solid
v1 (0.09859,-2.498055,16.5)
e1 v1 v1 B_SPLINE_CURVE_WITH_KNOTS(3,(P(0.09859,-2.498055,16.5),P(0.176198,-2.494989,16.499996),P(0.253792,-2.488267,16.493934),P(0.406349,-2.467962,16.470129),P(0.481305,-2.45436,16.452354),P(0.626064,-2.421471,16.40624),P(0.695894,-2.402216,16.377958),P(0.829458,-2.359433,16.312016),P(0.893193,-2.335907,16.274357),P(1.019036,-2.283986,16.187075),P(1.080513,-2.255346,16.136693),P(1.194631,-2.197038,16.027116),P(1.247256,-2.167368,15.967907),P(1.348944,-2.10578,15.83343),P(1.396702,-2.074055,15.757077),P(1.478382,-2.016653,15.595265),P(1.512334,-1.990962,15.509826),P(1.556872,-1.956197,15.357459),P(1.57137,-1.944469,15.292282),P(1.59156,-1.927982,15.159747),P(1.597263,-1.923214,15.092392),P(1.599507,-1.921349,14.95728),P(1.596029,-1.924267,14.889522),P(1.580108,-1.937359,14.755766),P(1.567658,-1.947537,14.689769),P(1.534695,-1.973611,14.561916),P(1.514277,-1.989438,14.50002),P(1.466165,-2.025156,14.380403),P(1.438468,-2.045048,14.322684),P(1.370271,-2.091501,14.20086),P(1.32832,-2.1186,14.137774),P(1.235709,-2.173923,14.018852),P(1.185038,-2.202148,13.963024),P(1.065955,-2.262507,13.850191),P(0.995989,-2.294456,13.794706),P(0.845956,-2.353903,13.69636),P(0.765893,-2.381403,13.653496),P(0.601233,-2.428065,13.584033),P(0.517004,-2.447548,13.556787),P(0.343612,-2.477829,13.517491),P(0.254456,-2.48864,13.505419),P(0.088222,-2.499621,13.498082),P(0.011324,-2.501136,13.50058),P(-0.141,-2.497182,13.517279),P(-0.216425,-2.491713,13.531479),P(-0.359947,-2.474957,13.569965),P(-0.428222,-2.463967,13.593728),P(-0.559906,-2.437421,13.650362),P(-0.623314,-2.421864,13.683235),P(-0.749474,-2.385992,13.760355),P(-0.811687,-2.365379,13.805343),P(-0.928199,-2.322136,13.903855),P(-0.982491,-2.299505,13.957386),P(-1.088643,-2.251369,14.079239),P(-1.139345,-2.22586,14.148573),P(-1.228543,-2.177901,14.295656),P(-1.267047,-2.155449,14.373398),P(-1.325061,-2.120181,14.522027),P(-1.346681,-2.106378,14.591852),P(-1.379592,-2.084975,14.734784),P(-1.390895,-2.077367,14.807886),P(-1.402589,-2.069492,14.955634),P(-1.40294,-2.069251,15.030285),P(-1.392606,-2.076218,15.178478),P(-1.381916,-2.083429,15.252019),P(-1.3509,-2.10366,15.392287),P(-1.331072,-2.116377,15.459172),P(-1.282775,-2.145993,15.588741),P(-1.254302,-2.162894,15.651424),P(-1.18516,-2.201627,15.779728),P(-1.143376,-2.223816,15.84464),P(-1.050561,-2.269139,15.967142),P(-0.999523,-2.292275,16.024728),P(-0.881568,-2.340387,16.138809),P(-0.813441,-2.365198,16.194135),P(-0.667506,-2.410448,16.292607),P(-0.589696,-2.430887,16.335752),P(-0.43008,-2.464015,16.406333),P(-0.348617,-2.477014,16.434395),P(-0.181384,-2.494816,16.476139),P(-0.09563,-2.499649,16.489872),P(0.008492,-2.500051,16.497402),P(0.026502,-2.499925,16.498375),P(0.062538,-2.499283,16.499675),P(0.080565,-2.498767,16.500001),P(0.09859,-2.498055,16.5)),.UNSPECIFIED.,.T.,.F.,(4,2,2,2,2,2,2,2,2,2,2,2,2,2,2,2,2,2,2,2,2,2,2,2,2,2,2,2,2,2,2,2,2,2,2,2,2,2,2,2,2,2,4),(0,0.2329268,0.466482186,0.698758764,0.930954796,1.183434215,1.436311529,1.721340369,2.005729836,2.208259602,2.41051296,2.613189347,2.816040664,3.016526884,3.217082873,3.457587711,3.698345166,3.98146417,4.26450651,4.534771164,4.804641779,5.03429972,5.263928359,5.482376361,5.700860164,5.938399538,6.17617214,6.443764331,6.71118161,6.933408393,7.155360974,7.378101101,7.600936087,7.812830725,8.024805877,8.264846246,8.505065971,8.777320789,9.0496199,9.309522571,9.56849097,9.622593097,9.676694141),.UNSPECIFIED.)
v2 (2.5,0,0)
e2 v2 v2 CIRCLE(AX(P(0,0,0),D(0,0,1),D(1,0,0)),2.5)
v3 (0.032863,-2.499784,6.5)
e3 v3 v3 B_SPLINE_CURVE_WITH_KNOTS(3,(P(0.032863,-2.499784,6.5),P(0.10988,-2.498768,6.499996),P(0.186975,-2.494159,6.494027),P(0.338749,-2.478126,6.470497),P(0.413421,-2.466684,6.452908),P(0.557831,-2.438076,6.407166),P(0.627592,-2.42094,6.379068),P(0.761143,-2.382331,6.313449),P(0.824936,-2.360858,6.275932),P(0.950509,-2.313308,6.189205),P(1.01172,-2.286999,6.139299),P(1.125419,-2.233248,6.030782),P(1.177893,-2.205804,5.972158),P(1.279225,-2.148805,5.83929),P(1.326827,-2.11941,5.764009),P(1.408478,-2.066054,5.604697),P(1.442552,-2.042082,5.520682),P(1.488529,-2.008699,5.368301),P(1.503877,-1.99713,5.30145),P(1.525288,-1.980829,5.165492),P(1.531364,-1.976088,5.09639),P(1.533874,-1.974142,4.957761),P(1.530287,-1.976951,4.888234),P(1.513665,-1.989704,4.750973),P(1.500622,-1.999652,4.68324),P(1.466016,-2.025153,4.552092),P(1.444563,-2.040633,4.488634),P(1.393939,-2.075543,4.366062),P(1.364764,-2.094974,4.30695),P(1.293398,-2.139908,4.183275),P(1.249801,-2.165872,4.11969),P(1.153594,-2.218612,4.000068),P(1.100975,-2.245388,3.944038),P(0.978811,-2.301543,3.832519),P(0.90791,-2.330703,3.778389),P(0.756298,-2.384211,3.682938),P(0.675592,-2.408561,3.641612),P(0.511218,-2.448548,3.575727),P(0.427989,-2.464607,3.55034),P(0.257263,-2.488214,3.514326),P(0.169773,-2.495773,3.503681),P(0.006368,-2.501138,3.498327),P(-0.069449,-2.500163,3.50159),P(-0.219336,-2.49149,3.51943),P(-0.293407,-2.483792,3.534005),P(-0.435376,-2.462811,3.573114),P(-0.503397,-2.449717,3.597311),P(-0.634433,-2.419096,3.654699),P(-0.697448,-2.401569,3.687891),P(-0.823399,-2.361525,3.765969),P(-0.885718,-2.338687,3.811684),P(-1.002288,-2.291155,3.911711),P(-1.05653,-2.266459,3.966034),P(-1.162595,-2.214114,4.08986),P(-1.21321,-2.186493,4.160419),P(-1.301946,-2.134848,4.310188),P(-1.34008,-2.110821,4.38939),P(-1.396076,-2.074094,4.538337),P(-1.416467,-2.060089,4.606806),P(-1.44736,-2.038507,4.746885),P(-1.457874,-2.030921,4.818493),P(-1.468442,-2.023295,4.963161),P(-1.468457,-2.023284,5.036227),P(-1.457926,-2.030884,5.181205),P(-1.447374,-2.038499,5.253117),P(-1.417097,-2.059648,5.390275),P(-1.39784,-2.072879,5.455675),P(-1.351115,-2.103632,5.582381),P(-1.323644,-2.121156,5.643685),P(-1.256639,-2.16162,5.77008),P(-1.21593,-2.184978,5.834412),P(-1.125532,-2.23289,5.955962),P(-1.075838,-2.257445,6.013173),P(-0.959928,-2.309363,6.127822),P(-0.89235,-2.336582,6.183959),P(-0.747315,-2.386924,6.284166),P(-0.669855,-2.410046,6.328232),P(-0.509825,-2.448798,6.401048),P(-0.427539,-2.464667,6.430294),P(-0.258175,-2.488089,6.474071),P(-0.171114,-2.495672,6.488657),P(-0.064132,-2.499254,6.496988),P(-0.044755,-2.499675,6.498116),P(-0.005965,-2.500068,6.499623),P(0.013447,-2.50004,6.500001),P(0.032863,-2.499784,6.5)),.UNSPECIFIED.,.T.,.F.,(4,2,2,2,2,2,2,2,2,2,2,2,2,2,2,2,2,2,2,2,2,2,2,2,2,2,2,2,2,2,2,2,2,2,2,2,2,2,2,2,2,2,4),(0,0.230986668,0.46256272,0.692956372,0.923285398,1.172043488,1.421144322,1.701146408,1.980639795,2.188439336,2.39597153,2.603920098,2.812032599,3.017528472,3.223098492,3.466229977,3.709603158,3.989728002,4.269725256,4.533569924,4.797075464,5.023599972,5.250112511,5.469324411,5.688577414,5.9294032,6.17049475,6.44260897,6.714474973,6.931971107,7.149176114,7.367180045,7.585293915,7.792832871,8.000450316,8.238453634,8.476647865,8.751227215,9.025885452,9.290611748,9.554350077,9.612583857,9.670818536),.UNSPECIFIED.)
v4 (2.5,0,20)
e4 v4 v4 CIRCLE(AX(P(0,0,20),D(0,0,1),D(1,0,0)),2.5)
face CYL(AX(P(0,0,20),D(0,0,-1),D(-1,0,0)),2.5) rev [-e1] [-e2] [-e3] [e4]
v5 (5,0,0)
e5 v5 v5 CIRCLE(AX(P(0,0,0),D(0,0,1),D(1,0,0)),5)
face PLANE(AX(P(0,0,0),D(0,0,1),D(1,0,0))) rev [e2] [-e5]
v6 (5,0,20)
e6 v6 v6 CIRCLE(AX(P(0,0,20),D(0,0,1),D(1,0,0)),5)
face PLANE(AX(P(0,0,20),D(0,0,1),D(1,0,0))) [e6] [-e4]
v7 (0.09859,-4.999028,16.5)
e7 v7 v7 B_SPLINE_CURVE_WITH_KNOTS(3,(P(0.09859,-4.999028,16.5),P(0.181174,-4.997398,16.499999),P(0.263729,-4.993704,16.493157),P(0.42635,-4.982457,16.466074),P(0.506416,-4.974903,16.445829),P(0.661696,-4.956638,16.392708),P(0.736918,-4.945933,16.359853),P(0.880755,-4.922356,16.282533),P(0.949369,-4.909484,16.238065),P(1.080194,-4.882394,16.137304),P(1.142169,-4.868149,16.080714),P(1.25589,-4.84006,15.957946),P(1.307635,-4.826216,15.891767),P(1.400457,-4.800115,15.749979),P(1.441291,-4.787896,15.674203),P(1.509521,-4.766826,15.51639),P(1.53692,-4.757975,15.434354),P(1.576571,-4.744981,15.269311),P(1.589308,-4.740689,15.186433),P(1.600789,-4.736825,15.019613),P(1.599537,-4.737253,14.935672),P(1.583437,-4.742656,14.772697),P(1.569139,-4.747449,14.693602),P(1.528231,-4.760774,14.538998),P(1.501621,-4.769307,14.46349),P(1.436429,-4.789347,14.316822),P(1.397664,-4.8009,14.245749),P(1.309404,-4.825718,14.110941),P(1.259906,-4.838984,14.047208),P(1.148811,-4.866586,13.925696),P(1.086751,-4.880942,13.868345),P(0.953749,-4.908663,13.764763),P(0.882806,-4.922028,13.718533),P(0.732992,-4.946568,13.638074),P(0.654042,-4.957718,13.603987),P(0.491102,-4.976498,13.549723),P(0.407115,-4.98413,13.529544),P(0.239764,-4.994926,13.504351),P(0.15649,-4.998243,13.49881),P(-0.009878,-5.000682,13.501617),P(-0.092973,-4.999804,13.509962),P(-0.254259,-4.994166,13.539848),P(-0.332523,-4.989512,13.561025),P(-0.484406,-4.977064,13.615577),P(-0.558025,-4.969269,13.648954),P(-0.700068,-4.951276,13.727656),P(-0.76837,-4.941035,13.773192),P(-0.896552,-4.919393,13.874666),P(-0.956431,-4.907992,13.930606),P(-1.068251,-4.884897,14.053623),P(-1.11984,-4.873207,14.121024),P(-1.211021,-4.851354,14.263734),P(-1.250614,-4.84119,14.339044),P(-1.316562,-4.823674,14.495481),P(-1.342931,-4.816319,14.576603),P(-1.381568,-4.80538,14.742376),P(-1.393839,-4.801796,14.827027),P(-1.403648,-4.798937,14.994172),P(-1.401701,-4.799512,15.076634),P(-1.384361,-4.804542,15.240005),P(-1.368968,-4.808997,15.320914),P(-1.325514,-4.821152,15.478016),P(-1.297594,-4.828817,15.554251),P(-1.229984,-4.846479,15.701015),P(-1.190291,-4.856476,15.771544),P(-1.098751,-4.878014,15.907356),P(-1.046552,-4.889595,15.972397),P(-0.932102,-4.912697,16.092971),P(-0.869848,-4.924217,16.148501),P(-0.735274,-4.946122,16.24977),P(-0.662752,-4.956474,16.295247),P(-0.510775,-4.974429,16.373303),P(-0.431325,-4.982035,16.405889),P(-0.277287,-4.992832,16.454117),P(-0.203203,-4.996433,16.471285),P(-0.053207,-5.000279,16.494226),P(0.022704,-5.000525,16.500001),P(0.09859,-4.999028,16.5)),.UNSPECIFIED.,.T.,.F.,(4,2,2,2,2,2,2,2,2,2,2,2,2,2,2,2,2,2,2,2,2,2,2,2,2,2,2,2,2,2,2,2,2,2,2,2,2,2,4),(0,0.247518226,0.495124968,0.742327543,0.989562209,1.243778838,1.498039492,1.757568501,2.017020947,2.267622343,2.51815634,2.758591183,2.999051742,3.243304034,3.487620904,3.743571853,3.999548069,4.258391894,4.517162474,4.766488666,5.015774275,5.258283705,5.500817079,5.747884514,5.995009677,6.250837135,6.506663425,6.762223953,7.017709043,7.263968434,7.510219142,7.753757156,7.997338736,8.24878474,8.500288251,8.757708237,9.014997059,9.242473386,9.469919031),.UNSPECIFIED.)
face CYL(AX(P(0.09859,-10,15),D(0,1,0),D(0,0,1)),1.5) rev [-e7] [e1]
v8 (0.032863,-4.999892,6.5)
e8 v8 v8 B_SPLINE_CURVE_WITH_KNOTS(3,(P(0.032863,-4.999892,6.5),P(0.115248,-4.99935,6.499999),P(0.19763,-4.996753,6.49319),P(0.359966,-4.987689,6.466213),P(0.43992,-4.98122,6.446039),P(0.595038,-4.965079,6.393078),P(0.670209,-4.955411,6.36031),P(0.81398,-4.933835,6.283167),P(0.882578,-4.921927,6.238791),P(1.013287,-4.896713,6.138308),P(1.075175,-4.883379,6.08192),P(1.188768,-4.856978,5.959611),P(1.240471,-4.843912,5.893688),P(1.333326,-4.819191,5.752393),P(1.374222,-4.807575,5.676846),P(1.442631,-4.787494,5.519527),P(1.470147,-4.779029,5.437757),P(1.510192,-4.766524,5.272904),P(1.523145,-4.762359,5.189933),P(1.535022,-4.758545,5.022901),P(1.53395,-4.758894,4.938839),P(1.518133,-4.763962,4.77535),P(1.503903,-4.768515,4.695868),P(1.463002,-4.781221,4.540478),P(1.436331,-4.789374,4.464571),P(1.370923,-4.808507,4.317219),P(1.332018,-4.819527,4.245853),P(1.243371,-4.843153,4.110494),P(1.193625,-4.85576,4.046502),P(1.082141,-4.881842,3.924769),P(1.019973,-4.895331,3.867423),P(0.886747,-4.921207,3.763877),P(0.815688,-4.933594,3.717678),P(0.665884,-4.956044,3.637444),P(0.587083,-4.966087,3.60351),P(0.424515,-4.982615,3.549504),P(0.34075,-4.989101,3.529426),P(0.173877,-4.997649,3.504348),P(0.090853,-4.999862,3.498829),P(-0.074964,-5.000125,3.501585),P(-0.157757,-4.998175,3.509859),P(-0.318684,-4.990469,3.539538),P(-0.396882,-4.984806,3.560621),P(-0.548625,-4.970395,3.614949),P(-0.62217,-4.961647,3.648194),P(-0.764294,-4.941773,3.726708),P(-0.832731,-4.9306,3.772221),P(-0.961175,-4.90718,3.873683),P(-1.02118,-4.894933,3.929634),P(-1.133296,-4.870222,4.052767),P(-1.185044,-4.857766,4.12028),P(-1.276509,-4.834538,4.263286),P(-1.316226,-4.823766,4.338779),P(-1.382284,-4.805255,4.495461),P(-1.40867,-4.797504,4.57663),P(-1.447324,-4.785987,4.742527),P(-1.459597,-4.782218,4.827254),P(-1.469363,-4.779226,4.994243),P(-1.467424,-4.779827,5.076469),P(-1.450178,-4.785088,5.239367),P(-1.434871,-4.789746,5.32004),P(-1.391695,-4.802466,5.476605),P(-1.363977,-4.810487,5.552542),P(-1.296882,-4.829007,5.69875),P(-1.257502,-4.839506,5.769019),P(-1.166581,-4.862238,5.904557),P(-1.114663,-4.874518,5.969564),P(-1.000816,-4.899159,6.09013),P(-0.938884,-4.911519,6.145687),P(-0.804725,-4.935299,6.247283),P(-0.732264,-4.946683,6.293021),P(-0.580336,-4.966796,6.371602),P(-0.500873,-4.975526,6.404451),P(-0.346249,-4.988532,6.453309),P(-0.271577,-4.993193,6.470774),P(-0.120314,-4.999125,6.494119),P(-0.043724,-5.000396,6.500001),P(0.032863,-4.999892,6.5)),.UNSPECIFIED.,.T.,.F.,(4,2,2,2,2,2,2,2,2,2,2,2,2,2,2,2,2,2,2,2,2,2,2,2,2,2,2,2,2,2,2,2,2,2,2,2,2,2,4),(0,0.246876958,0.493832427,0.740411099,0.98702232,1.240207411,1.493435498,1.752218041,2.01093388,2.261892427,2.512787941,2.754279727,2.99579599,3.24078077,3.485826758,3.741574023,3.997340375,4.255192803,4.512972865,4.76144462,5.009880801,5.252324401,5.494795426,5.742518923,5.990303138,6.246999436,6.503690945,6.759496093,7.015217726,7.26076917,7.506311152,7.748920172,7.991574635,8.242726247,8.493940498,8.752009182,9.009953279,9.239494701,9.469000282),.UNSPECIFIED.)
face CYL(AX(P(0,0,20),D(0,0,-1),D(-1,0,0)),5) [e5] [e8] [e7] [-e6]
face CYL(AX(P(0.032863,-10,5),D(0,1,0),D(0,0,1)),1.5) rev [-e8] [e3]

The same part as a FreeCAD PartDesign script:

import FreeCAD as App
import Part
import Sketcher
from FreeCAD import Vector
Q = App.Units.Quantity

doc = App.newDocument("Part")
body = doc.addObject("PartDesign::Body", "Body")

sketch1 = doc.addObject("Sketcher::SketchObject", "Sketch")
body.addObject(sketch1)
sketch1.AttachmentSupport = (doc.XY_Plane, [""])
sketch1.MapMode = "FlatFace"
sketch1.addGeometry(Part.Circle(Vector(0, 0, 0), Vector(0, 0, 1), 5), False)
sketch1.addGeometry(Part.Circle(Vector(0, 0, 0), Vector(0, 0, 1), 2.5), False)
sketch1.addConstraint(Sketcher.Constraint("Coincident", 0, 3, -1, 1))
sketch1.addConstraint(Sketcher.Constraint("Coincident", 1, 3, -1, 1))
sketch1.addConstraint(Sketcher.Constraint("Diameter", 0, Q("10 mm")))
sketch1.addConstraint(Sketcher.Constraint("Diameter", 1, Q("5 mm")))
pad1 = doc.addObject("PartDesign::Pad", "Pad")
body.addObject(pad1)
pad1.Profile = sketch1
pad1.Length = 20

sketch2 = doc.addObject("Sketcher::SketchObject", "Sketch001")
body.addObject(sketch2)
sketch2.AttachmentSupport = (doc.XZ_Plane, [""])
sketch2.MapMode = "FlatFace"
sketch2.addGeometry(Part.Circle(Vector(0, 5, 0), Vector(0, 0, 1), 1.5), False)
sketch2.addGeometry(Part.Circle(Vector(0.1, 15, 0), Vector(0, 0, 1), 1.5), False)
sketch2.addConstraint(Sketcher.Constraint("Equal", 0, 1))
sketch2.addConstraint(Sketcher.Constraint("Diameter", 0, Q("3 mm")))
sketch2.addConstraint(Sketcher.Constraint("DistanceY", -1, 1, 0, 3, Q("5 mm")))
sketch2.addConstraint(Sketcher.Constraint("DistanceY", -1, 1, 1, 3, Q("15 mm")))
sketch2.addConstraint(Sketcher.Constraint("DistanceX", -1, 1, 1, 3, Q("0.09859 mm")))
sketch2.addConstraint(Sketcher.Constraint("DistanceX", -1, 1, 0, 3, Q("0.032863 mm")))
pocket1 = doc.addObject("PartDesign::Pocket", "Pocket")
body.addObject(pocket1)
pocket1.Profile = sketch2
pocket1.Length = 10
pocket1.Reversed = True

doc.recompute()
